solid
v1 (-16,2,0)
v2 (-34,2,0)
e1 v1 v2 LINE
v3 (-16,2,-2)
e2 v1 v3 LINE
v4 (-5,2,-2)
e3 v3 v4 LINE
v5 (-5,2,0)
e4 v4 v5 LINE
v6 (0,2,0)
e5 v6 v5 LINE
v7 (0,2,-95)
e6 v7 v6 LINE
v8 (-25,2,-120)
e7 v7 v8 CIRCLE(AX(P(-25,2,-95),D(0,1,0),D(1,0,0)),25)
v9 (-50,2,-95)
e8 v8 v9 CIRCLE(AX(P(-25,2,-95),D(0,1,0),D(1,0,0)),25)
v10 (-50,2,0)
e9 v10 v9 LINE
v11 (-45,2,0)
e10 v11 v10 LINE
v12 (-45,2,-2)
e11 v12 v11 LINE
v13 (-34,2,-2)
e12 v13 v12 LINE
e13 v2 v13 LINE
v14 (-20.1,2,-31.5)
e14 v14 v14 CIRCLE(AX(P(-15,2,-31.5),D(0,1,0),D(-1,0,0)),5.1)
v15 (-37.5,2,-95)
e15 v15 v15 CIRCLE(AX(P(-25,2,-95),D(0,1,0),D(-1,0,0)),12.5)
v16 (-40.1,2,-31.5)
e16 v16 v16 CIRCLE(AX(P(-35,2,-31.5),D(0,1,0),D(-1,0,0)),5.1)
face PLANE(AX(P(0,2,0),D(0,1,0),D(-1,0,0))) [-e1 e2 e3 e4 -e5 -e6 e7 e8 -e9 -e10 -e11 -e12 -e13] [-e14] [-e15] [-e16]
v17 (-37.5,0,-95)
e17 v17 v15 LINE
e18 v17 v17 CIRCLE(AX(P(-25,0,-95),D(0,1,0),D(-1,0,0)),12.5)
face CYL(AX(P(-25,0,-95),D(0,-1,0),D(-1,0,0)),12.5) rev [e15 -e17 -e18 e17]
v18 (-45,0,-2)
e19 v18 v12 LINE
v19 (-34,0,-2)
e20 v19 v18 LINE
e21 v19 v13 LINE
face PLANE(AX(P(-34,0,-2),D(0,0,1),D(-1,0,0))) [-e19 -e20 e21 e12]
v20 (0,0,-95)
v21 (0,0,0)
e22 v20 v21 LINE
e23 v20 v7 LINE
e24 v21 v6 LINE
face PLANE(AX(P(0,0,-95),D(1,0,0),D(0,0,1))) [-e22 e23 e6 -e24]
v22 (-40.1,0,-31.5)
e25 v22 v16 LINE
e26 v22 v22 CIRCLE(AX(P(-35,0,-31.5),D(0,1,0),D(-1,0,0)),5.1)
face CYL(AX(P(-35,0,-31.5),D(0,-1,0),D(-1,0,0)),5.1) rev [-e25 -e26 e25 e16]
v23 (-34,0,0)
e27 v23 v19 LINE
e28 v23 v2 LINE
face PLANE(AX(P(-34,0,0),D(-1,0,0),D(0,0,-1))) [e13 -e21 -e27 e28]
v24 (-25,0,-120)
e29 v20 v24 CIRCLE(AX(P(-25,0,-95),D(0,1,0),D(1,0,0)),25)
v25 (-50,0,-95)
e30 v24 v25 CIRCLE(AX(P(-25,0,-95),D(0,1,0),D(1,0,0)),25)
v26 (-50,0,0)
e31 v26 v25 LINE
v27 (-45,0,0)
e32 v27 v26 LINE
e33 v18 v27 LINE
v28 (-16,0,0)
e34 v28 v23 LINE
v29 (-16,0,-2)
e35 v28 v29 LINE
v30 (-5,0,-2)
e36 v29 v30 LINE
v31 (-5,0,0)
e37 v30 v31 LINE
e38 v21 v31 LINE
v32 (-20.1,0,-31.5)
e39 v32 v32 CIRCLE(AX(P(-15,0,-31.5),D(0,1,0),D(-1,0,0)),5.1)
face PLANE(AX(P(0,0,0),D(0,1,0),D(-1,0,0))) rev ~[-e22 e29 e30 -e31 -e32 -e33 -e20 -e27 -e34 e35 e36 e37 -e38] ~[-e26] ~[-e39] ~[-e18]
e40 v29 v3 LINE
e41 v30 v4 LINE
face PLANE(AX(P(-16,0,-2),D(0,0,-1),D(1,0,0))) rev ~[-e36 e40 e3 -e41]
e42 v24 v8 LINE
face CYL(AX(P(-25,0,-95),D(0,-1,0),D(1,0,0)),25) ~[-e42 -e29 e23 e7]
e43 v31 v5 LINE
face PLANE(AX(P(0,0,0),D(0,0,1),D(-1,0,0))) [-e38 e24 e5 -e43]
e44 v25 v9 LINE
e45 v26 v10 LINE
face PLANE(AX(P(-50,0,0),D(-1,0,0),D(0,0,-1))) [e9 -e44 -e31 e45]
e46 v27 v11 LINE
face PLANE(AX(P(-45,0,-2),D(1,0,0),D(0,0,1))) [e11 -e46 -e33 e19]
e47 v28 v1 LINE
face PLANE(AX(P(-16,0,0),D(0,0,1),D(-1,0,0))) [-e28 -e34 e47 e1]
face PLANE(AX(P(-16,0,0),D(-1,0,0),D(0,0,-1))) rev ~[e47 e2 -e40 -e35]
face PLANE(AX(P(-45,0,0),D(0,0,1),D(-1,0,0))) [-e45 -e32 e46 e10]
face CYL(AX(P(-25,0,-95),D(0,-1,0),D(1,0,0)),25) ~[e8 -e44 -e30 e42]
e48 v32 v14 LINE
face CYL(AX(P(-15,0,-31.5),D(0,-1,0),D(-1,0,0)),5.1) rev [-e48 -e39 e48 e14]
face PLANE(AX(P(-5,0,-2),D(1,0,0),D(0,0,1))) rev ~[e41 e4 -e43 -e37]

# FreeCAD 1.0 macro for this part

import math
import FreeCAD as App
import Part
import Sketcher

V = App.Vector

doc = App.newDocument("Part")
body = doc.addObject("PartDesign::Body", "Body")

sketch1 = body.newObject("Sketcher::SketchObject", "Sketch")
sketch1.AttachmentSupport = (doc.getObject("XZ_Plane"), [""])
sketch1.MapMode = "FlatFace"
sketch1.addGeometry([
    Part.LineSegment(V(-5, 0, 0), V(0, 0, 0)),
    Part.LineSegment(V(0, 0, 0), V(0, -95, 0)),
    Part.ArcOfCircle(Part.Circle(V(-25, -95, 0), V(0, 0, 1), 25), math.radians(180), math.radians(360)),
    Part.LineSegment(V(-50, -95, 0), V(-50, 0, 0)),
    Part.LineSegment(V(-50, 0, 0), V(-45, 0, 0)),
    Part.LineSegment(V(-45, 0, 0), V(-45, -2, 0)),
    Part.LineSegment(V(-45, -2, 0), V(-34, -2, 0)),
    Part.LineSegment(V(-34, -2, 0), V(-34, 0, 0)),
    Part.LineSegment(V(-34, 0, 0), V(-16, 0, 0)),
    Part.LineSegment(V(-16, 0, 0), V(-16, -2, 0)),
    Part.LineSegment(V(-16, -2, 0), V(-5, -2, 0)),
    Part.LineSegment(V(-5, -2, 0), V(-5, 0, 0)),
    Part.Circle(V(-25, -95, 0), V(0, 0, 1), 12.5),
    Part.Circle(V(-15, -31.5, 0), V(0, 0, 1), 5.1),
    Part.Circle(V(-35, -31.5, 0), V(0, 0, 1), 5.1),
], False)
sketch1.addConstraint([
    Sketcher.Constraint("Coincident", 0, 2, 1, 1),
    Sketcher.Constraint("Tangent", 1, 2, 2, 2),
    Sketcher.Constraint("Tangent", 2, 1, 3, 1),
    Sketcher.Constraint("Coincident", 3, 2, 4, 1),
    Sketcher.Constraint("Coincident", 4, 2, 5, 1),
    Sketcher.Constraint("Coincident", 5, 2, 6, 1),
    Sketcher.Constraint("Coincident", 6, 2, 7, 1),
    Sketcher.Constraint("Coincident", 7, 2, 8, 1),
    Sketcher.Constraint("Coincident", 8, 2, 9, 1),
    Sketcher.Constraint("Coincident", 9, 2, 10, 1),
    Sketcher.Constraint("Coincident", 10, 2, 11, 1),
    Sketcher.Constraint("Coincident", 11, 2, 0, 1),
    Sketcher.Constraint("Horizontal", 0),
    Sketcher.Constraint("Vertical", 1),
    Sketcher.Constraint("Vertical", 3),
    Sketcher.Constraint("Horizontal", 4),
    Sketcher.Constraint("Vertical", 5),
    Sketcher.Constraint("Horizontal", 6),
    Sketcher.Constraint("Vertical", 7),
    Sketcher.Constraint("Horizontal", 8),
    Sketcher.Constraint("Vertical", 9),
    Sketcher.Constraint("Horizontal", 10),
    Sketcher.Constraint("Vertical", 11),
    Sketcher.Constraint("Coincident", 0, 2, -1, 1),
    Sketcher.Constraint("Coincident", 12, 3, 2, 3),
    Sketcher.Constraint("Equal", 13, 14),
    Sketcher.Constraint("PointOnObject", 3, 2, -1),
    Sketcher.Constraint("PointOnObject", 7, 2, -1),
    Sketcher.Constraint("Horizontal", 13, 3, 14, 3),
    Sketcher.Constraint("Horizontal", 6, 2, 9, 2),
    Sketcher.Constraint("Equal", 0, 4),
    Sketcher.Constraint("Equal", 6, 10),
    Sketcher.Constraint("Diameter", 12, 25.0),
    Sketcher.Constraint("Radius", 2, 25.0),
    Sketcher.Constraint("Diameter", 13, 10.2),
    Sketcher.Constraint("DistanceX", 0, 1, 0, 2, 5.0),
    Sketcher.Constraint("DistanceX", 6, 1, 6, 2, 11.0),
    Sketcher.Constraint("DistanceY", 5, 2, 5, 1, 2.0),
    Sketcher.Constraint("DistanceX", 13, 3, -1, 1, 15.0),
    Sketcher.Constraint("DistanceX", 14, 3, 13, 3, 20.0),
    Sketcher.Constraint("DistanceY", 13, 3, -1, 1, 31.5),
    Sketcher.Constraint("DistanceY", 1, 2, 1, 1, 95.0),
])
pad1 = body.newObject("PartDesign::Pad", "Pad")
pad1.Profile = sketch1
pad1.Length = 2
pad1.Reversed = True

doc.recompute()
